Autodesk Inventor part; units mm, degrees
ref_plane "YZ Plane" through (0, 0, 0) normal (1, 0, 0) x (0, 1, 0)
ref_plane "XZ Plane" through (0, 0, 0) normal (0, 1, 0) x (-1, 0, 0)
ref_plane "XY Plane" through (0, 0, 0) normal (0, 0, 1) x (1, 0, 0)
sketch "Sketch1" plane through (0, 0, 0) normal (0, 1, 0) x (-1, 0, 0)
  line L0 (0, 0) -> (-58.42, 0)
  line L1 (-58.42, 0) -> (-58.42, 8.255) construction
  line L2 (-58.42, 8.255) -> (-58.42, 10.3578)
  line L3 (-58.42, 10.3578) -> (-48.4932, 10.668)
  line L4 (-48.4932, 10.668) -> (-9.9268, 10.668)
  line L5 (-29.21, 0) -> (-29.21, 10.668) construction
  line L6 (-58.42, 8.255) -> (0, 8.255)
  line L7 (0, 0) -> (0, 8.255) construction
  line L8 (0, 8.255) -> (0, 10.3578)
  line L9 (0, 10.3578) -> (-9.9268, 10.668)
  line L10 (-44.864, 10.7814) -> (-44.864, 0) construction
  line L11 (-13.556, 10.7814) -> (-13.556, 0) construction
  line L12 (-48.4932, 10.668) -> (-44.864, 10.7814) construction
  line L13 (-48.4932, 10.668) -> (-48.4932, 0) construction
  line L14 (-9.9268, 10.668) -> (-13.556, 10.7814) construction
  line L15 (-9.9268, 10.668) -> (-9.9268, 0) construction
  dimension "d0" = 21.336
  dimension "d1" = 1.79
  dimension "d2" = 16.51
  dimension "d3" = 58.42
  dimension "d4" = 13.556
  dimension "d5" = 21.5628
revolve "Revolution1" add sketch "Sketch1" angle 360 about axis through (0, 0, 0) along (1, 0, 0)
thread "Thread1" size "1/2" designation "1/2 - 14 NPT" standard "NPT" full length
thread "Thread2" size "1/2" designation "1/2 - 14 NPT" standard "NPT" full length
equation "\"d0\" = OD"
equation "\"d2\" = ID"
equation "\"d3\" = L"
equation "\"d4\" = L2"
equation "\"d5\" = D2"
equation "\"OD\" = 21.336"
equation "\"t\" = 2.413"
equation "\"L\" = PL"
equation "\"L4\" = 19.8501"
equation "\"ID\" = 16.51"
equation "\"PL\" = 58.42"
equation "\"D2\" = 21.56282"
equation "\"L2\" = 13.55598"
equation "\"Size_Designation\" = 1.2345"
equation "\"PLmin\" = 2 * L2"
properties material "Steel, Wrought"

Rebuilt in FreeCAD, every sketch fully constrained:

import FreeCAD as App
import Part
import Sketcher
from FreeCAD import Vector
Q = App.Units.Quantity


def add_polygon(sketch, points):
    """Adds a closed chain of lines whose ends are joined by coincident constraints."""
    first, n = sketch.GeometryCount, len(points)
    for a, b in zip(points, points[1:] + points[:1]):
        sketch.addGeometry(Part.LineSegment(App.Vector(*a, 0), App.Vector(*b, 0)), False)
    for i in range(n):
        sketch.addConstraint(Sketcher.Constraint("Coincident", first + i, 2, first + (i + 1) % n, 1))

doc = App.newDocument("Part")
body = doc.addObject("PartDesign::Body", "Body")

sketch1 = body.newObject("Sketcher::SketchObject", "Sketch")
sketch1.AttachmentSupport = (doc.getObject("XZ_Plane"), [""])
sketch1.MapMode = "FlatFace"
add_polygon(sketch1, [(58.4, 10.4), (58.4, 8.3), (0, 8.3), (0, 10.4), (9.9, 10.7), (48.5, 10.7)])
sketch1.addConstraint([
    Sketcher.Constraint("Vertical", 0),
    Sketcher.Constraint("Horizontal", 1),
    Sketcher.Constraint("Vertical", 2),
    Sketcher.Constraint("Horizontal", 4),
    Sketcher.Constraint("PointOnObject", 1, 2, -2),
    Sketcher.Constraint("Horizontal", 2, 2, 5, 2),
    Sketcher.Constraint("Equal", 3, 5),
    Sketcher.Constraint("DistanceX", 1, 2, 1, 1, Q("2.3 in")),
    Sketcher.Constraint("Angle", 3, Q("1.7898 deg")),
    Sketcher.Constraint("DistanceY", -1, 1, 3, 2, Q("0.42 in")),
    Sketcher.Constraint("Distance", 3, Q("0.391 in")),
    Sketcher.Constraint("DistanceY", -1, 1, 0, 2, Q("0.325 in")),
])
revolution = body.newObject("PartDesign::Revolution", "Revolution")
revolution.Profile = sketch1
revolution.ReferenceAxis = (sketch1, ["H_Axis"])
revolution.Angle = 360

doc.recompute()
